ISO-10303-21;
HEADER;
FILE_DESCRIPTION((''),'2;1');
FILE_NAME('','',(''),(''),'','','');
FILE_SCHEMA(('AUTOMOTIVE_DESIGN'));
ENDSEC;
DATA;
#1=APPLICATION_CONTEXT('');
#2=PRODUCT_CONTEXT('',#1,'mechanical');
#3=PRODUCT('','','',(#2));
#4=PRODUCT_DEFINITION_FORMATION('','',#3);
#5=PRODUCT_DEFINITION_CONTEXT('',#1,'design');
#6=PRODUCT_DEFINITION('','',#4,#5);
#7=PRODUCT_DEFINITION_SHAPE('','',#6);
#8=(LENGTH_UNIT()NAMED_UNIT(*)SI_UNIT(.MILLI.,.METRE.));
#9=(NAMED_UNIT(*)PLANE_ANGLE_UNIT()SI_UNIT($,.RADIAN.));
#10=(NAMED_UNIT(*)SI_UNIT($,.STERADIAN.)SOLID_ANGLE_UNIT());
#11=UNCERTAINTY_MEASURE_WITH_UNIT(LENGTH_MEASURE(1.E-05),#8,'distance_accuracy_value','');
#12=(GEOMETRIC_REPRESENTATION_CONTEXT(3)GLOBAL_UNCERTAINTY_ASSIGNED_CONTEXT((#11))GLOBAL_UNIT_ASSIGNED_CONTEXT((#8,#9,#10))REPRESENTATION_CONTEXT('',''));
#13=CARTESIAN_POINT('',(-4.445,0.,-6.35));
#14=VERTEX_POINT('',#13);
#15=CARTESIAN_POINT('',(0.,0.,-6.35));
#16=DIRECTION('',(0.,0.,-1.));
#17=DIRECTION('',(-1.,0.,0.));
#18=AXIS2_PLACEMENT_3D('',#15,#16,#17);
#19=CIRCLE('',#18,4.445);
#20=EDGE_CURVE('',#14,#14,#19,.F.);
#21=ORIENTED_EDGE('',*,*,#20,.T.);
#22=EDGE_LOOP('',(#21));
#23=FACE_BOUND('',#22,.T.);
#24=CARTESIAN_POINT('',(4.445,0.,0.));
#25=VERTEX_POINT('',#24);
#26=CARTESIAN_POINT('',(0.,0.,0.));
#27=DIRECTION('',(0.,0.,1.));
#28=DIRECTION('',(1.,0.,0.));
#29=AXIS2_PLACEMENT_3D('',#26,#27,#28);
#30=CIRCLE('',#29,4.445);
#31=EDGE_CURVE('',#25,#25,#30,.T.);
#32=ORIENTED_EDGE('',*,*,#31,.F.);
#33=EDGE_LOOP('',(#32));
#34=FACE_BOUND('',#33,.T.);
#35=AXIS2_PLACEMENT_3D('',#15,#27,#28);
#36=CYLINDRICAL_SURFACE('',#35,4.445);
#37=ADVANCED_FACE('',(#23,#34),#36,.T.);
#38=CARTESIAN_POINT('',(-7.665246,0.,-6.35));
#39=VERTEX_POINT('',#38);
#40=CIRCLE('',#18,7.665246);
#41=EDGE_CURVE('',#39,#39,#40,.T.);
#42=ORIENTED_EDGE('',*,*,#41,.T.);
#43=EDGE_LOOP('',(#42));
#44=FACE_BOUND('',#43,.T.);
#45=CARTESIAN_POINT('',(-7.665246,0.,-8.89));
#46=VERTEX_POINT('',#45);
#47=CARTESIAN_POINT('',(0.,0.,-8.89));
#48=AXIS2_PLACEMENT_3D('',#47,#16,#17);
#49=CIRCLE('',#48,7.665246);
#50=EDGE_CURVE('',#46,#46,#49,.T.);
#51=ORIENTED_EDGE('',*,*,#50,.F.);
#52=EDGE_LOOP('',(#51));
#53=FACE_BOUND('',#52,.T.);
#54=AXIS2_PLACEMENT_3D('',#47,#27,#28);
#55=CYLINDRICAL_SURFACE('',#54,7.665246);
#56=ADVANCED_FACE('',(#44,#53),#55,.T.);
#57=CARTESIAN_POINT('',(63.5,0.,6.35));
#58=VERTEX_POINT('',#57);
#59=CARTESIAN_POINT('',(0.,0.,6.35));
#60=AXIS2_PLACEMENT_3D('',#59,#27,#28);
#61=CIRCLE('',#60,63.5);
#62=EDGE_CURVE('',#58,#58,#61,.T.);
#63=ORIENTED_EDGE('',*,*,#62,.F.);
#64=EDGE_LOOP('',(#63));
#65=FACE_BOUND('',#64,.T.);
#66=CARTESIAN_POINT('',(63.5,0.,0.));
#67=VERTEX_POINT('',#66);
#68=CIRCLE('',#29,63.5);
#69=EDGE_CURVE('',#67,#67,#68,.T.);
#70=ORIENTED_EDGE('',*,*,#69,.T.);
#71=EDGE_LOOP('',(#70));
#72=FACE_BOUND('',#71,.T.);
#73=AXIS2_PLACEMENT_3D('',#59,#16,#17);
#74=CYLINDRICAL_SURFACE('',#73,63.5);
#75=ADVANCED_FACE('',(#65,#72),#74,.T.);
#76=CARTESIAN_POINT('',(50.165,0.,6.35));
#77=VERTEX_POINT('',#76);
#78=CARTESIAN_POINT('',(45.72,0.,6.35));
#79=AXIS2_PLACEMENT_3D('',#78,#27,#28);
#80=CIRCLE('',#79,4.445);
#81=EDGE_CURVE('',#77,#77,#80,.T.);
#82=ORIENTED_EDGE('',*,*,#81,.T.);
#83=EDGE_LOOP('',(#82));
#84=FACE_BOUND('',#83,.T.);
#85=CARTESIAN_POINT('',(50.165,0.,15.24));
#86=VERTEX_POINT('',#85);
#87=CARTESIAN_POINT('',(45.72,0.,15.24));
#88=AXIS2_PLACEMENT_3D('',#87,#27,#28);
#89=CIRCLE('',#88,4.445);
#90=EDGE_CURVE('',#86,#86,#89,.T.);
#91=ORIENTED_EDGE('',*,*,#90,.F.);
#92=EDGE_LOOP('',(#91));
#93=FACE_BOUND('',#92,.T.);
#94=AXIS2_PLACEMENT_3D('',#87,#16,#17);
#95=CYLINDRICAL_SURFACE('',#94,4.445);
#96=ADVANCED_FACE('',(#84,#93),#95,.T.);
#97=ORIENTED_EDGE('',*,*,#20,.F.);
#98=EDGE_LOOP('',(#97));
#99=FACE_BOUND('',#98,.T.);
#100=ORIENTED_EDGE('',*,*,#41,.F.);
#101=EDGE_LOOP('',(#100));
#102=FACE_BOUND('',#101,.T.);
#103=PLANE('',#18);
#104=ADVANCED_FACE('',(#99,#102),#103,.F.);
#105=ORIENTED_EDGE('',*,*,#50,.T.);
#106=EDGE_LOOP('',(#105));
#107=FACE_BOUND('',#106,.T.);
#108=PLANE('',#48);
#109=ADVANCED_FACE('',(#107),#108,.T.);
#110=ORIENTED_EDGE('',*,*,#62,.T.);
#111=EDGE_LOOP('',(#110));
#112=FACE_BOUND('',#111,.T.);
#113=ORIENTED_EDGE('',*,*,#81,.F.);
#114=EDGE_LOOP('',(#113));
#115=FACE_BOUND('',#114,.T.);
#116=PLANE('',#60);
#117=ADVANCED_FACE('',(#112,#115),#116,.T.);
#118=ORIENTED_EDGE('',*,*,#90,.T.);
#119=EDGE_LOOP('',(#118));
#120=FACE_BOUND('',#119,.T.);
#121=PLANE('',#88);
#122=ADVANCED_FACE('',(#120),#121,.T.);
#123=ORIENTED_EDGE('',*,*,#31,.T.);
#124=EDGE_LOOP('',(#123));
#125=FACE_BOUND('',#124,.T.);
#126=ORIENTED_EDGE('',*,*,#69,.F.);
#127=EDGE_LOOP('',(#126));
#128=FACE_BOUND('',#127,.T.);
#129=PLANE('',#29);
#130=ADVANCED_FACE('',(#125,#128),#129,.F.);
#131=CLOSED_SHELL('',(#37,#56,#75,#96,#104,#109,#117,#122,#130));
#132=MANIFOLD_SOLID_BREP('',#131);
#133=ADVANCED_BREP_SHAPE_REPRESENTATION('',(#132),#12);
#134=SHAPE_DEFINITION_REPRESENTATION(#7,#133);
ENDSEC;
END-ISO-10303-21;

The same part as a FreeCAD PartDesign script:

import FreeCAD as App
import Part
import Sketcher

V = App.Vector
Q = App.Units.Quantity

doc = App.newDocument("Part")
params = doc.addObject("Spreadsheet::Sheet", "Params")
for row, (alias, value) in enumerate([
    ("sketch1_diameter", "5 in"),
    ("pad1_length", "0.25 in"),
    ("sketch2_diameter", "0.35 in"),
    ("pad2_length", "0.35 in"),
    ("sketch3_diameter", "0.35 in"),
    ("pad3_length", "0.25 in"),
    ("pad4_length", "0.1 in"),
], start=1):
    params.set(f"A{row}", alias)
    params.set(f"B{row}", "=" + value)
    params.setAlias(f"B{row}", alias)

body = doc.addObject("PartDesign::Body", "Body")

sketch1 = body.newObject("Sketcher::SketchObject", "Sketch")
sketch1.AttachmentSupport = (doc.getObject("XY_Plane"), [""])
sketch1.MapMode = "FlatFace"
sketch1.addGeometry(Part.Circle(V(0, 0, 0), V(0, 0, 1), 64), False)
sketch1.addConstraint([
    Sketcher.Constraint("Coincident", 0, 3, -1, 1),
    Sketcher.Constraint("Diameter", 0, Q("5 in")),
])
sketch1.setExpression("Constraints[1]", "Params.sketch1_diameter")
pad1 = body.newObject("PartDesign::Pad", "Pad")
pad1.Profile = sketch1
pad1.setExpression("Length", "Params.pad1_length")

sketch2 = body.newObject("Sketcher::SketchObject", "Sketch001")
sketch2.AttachmentSupport = (doc.getObject("XY_Plane"), [""])
sketch2.MapMode = "FlatFace"
sketch2.AttachmentOffset = App.Placement(V(0, 0, 0.25 * 25.4), App.Rotation())
sketch2.addGeometry(Part.Circle(V(45.7, 0, 0), V(0, 0, 1), 4.4), False)
sketch2.addConstraint([
    Sketcher.Constraint("PointOnObject", 0, 3, -1),
    Sketcher.Constraint("Diameter", 0, Q("0.35 in")),
    Sketcher.Constraint("DistanceX", -1, 1, 0, 3, Q("1.8 in")),
])
sketch2.setExpression("Constraints[1]", "Params.sketch2_diameter")
pad2 = body.newObject("PartDesign::Pad", "Pad001")
pad2.Profile = sketch2
pad2.setExpression("Length", "Params.pad2_length")

sketch3 = body.newObject("Sketcher::SketchObject", "Sketch002")
sketch3.AttachmentSupport = (doc.getObject("XY_Plane"), [""])
sketch3.MapMode = "FlatFace"
sketch3.addGeometry(Part.Circle(V(0, 0, 0), V(0, 0, 1), 4.4), False)
sketch3.addConstraint([
    Sketcher.Constraint("Coincident", 0, 3, -1, 1),
    Sketcher.Constraint("Diameter", 0, Q("0.35 in")),
])
sketch3.setExpression("Constraints[1]", "Params.sketch3_diameter")
pad3 = body.newObject("PartDesign::Pad", "Pad002")
pad3.Profile = sketch3
pad3.setExpression("Length", "Params.pad3_length")
pad3.Reversed = True

sketch4 = body.newObject("Sketcher::SketchObject", "Sketch003")
sketch4.AttachmentSupport = (doc.getObject("XY_Plane"), [""])
sketch4.MapMode = "FlatFace"
sketch4.AttachmentOffset = App.Placement(V(0, 0, -0.25 * 25.4), App.Rotation())
sketch4.addGeometry(Part.Circle(V(0, 0, 0), V(0, 0, 1), 8), False)
sketch4.addConstraint([
    Sketcher.Constraint("Coincident", 0, 3, -1, 1),
    Sketcher.Constraint("Diameter", 0, 15.330492),
])
pad4 = body.newObject("PartDesign::Pad", "Pad003")
pad4.Profile = sketch4
pad4.setExpression("Length", "Params.pad4_length")
pad4.Reversed = True

doc.recompute()
